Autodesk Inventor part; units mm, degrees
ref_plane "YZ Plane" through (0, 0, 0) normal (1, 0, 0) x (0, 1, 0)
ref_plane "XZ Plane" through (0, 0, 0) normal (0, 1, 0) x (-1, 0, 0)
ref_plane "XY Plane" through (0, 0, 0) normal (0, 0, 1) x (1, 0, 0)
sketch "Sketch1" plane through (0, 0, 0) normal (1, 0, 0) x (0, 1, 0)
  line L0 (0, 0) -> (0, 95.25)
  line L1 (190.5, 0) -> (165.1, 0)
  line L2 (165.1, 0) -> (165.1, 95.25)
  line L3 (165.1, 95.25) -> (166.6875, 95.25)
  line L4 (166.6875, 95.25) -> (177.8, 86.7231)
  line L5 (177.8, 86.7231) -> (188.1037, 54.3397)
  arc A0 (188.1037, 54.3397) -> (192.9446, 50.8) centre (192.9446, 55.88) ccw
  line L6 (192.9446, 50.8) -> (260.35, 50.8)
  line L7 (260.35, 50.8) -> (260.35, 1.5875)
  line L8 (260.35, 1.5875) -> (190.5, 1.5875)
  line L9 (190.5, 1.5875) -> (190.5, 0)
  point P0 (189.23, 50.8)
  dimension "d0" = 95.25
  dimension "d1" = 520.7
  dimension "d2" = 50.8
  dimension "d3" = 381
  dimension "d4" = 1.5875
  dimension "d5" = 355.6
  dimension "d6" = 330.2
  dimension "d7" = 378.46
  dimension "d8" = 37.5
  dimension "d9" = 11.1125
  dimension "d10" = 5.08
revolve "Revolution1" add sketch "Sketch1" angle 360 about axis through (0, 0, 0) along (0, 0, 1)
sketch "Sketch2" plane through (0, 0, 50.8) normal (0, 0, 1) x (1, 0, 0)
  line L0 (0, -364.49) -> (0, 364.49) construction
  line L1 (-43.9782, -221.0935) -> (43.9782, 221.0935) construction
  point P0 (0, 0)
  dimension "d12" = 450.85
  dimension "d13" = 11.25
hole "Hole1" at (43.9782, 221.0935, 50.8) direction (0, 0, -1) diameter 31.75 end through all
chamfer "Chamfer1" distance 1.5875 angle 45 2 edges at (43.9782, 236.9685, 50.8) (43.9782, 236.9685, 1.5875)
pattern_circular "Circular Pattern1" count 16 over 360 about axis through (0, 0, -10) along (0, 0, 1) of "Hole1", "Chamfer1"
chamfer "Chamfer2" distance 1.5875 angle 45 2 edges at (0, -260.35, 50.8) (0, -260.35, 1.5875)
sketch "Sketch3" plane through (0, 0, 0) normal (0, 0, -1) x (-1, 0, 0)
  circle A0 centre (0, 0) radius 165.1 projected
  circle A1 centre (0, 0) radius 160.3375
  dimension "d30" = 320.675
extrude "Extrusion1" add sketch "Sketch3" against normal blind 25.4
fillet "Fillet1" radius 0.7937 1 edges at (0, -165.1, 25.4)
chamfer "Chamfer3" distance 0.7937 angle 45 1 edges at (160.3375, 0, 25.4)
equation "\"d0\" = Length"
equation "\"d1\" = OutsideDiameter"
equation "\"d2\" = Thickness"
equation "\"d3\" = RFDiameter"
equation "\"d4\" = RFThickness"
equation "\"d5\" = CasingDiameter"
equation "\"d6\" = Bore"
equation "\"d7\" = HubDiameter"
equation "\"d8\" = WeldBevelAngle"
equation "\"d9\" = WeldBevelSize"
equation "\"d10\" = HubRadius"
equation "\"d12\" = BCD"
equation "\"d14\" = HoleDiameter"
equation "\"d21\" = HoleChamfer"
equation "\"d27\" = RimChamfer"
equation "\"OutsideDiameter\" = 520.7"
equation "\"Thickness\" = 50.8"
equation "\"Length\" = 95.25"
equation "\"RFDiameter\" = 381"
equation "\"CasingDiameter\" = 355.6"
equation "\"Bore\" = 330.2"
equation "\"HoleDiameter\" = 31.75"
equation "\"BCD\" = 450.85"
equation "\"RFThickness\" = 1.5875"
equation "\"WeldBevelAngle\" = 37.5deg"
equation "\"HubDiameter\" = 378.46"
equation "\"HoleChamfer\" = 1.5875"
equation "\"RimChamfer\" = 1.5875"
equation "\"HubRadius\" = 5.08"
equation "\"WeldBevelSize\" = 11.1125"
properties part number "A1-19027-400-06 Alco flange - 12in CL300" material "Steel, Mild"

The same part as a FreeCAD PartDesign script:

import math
import FreeCAD as App
import Part
import Sketcher
from FreeCAD import Vector
Q = App.Units.Quantity


def edges_at(feature, points):
    """Names of the edges that pass closest to the given points."""
    edges = feature.Shape.Edges
    near = lambda p: min(range(len(edges)), key=lambda i: edges[i].distToShape(Part.Vertex(*p))[0])
    return sorted({f"Edge{near(p) + 1}" for p in points})

doc = App.newDocument("Part")
body = doc.addObject("PartDesign::Body", "Body")

sketch1 = body.newObject("Sketcher::SketchObject", "Sketch")
sketch1.AttachmentSupport = (doc.getObject("YZ_Plane"), [""])
sketch1.MapMode = "FlatFace"
sketch1.addGeometry([
    Part.LineSegment(Vector(165.1, 0, 0), Vector(190.5, 0, 0)),
    Part.LineSegment(Vector(190.5, 0, 0), Vector(190.5, 1.6, 0)),
    Part.LineSegment(Vector(190.5, 1.6, 0), Vector(260.4, 1.6, 0)),
    Part.LineSegment(Vector(260.4, 1.6, 0), Vector(260.4, 50.8, 0)),
    Part.LineSegment(Vector(260.4, 50.8, 0), Vector(192.9, 50.8, 0)),
    Part.ArcOfCircle(Part.Circle(Vector(192.9, 55.9, 0), Vector(0, 0, 1), 5.1), math.radians(-162), math.radians(-90)),
    Part.LineSegment(Vector(188.1, 54.3, 0), Vector(177.8, 86.7, 0)),
    Part.LineSegment(Vector(177.8, 86.7, 0), Vector(166.7, 95.2, 0)),
    Part.LineSegment(Vector(166.7, 95.2, 0), Vector(165.1, 95.2, 0)),
    Part.LineSegment(Vector(165.1, 95.2, 0), Vector(165.1, 0, 0)),
], False)
sketch1.addConstraint([
    Sketcher.Constraint("Coincident", 0, 2, 1, 1),
    Sketcher.Constraint("Coincident", 1, 2, 2, 1),
    Sketcher.Constraint("Coincident", 2, 2, 3, 1),
    Sketcher.Constraint("Coincident", 3, 2, 4, 1),
    Sketcher.Constraint("Tangent", 4, 2, 5, 2),
    Sketcher.Constraint("Tangent", 5, 1, 6, 1),
    Sketcher.Constraint("Coincident", 6, 2, 7, 1),
    Sketcher.Constraint("Coincident", 7, 2, 8, 1),
    Sketcher.Constraint("Coincident", 8, 2, 9, 1),
    Sketcher.Constraint("Coincident", 9, 2, 0, 1),
    Sketcher.Constraint("Horizontal", 0),
    Sketcher.Constraint("Vertical", 1),
    Sketcher.Constraint("Horizontal", 2),
    Sketcher.Constraint("Vertical", 3),
    Sketcher.Constraint("Horizontal", 4),
    Sketcher.Constraint("Horizontal", 8),
    Sketcher.Constraint("Vertical", 9),
    Sketcher.Constraint("PointOnObject", 0, 2, -1),
    Sketcher.Constraint("Equal", 8, 1),
    Sketcher.Constraint("Radius", 5, Q("0.2 in")),
    Sketcher.Constraint("DistanceY", -1, 1, 3, 2, Q("2 in")),
    Sketcher.Constraint("DistanceY", 9, 2, 9, 1, Q("3.75 in")),
    Sketcher.Constraint("DistanceX", 0, 1, 0, 2, Q("1 in")),
    Sketcher.Constraint("DistanceX", 8, 2, 8, 1, Q("0.0625 in")),
    Sketcher.Constraint("DistanceX", -1, 1, 6, 2, Q("7 in")),
    Sketcher.Constraint("DistanceX", 7, 2, 6, 2, Q("0.4375 in")),
    Sketcher.Constraint("DistanceX", 2, 1, 2, 2, Q("2.75 in")),
    Sketcher.Constraint("Angle", 7, Q("142.5 deg")),
    Sketcher.Constraint("Angle", 6, Q("107.65 deg")),
])
revolution = body.newObject("PartDesign::Revolution", "Revolution")
revolution.Profile = sketch1
revolution.ReferenceAxis = (sketch1, ["V_Axis"])
revolution.Angle = 360

sketch2 = body.newObject("Sketcher::SketchObject", "Sketch001")
sketch2.AttachmentSupport = (doc.getObject("XY_Plane"), [""])
sketch2.MapMode = "FlatFace"
sketch2.AttachmentOffset = App.Placement(Vector(0, 0, 2 * 25.4), App.Rotation())
sketch2.addGeometry(Part.Circle(Vector(44, 221, 0), Vector(0, 0, 1), 16), False)
sketch2.addConstraint([
    Sketcher.Constraint("Diameter", 0, Q("1.25 in")),
    Sketcher.Constraint("DistanceX", -1, 1, 0, 3, 43.9782),
    Sketcher.Constraint("DistanceY", -1, 1, 0, 3, 221.0935),
])
doc.recompute()
hole = body.newObject("PartDesign::Hole", "Hole")
hole.Profile = sketch2
hole.ThreadType = "None"
hole.Diameter = Q("1.25 in")
hole.DepthType = "ThroughAll"
doc.recompute()

chamfer = body.newObject("PartDesign::Chamfer", "Chamfer")
chamfer.Base = (hole, edges_at(hole, [(43.978, 236.969, 50.8), (43.978, 236.969, 1.587)]))
chamfer.Size = Q("0.0625 in")
doc.recompute()

polarpattern = body.newObject("PartDesign::PolarPattern", "PolarPattern")
polarpattern.Originals = [hole, chamfer]
polarpattern.Axis = (doc.getObject("Z_Axis"), [""])
polarpattern.Angle = 360
polarpattern.Occurrences = 16
body.Tip = polarpattern
doc.recompute()

chamfer2 = body.newObject("PartDesign::Chamfer", "Chamfer001")
chamfer2.Base = (polarpattern, edges_at(polarpattern, [(0, -260.35, 50.8), (0, -260.35, 1.587)]))
chamfer2.Size = Q("0.0625 in")

sketch3 = body.newObject("Sketcher::SketchObject", "Sketch002")
sketch3.AttachmentSupport = (doc.getObject("XY_Plane"), [""])
sketch3.MapMode = "FlatFace"
sketch3.addGeometry([
    Part.Circle(Vector(0, 0, 0), Vector(0, 0, 1), 165),
    Part.Circle(Vector(0, 0, 0), Vector(0, 0, 1), 160),
], False)
sketch3.addConstraint([
    Sketcher.Constraint("Coincident", 0, 3, -1, 1),
    Sketcher.Constraint("Coincident", 1, 3, -1, 1),
    Sketcher.Constraint("Diameter", 0, Q("13 in")),
    Sketcher.Constraint("Diameter", 1, Q("12.625 in")),
])
pad1 = body.newObject("PartDesign::Pad", "Pad")
pad1.Profile = sketch3
pad1.Length = Q("1 in")
doc.recompute()

fillet = body.newObject("PartDesign::Fillet", "Fillet")
fillet.Base = (pad1, edges_at(pad1, [(0, -165.1, 25.4)]))
fillet.Radius = Q("0.031248 in")
doc.recompute()

chamfer3 = body.newObject("PartDesign::Chamfer", "Chamfer002")
chamfer3.Base = (fillet, edges_at(fillet, [(160.338, 0, 25.4)]))
chamfer3.Size = Q("0.031248 in")

doc.recompute()
